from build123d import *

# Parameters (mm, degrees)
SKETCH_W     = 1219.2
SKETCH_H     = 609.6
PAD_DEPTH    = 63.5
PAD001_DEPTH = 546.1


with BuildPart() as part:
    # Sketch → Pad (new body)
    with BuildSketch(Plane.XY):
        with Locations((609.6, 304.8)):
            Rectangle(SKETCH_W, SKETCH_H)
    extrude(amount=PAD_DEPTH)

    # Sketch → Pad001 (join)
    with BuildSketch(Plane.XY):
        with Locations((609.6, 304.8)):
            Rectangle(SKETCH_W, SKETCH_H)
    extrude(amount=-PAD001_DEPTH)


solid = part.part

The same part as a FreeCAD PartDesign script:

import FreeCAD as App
import Part
import Sketcher

V = App.Vector
Q = App.Units.Quantity


def add_polygon(sketch, points):
    """Adds a closed chain of lines whose ends are joined by coincident constraints."""
    first, n = sketch.GeometryCount, len(points)
    for a, b in zip(points, points[1:] + points[:1]):
        sketch.addGeometry(Part.LineSegment(App.Vector(*a, 0), App.Vector(*b, 0)), False)
    for i in range(n):
        sketch.addConstraint(Sketcher.Constraint("Coincident", first + i, 2, first + (i + 1) % n, 1))

doc = App.newDocument("Part")
body = doc.addObject("PartDesign::Body", "Body")

sketch1 = doc.addObject("Sketcher::SketchObject", "Sketch")
body.addObject(sketch1)
sketch1.AttachmentSupport = (doc.XY_Plane, [""])
sketch1.MapMode = "FlatFace"
add_polygon(sketch1, [(0, 610), (0, 0), (1219, 0), (1219, 610)])
sketch1.addConstraint(Sketcher.Constraint("Vertical", 0))
sketch1.addConstraint(Sketcher.Constraint("Horizontal", 1))
sketch1.addConstraint(Sketcher.Constraint("Vertical", 2))
sketch1.addConstraint(Sketcher.Constraint("Horizontal", 3))
sketch1.addConstraint(Sketcher.Constraint("Coincident", 0, 2, -1, 1))
sketch1.addConstraint(Sketcher.Constraint("DistanceX", 1, 1, 1, 2, Q("48 in")))
sketch1.addConstraint(Sketcher.Constraint("DistanceY", 0, 2, 0, 1, Q("24 in")))
pad1 = doc.addObject("PartDesign::Pad", "Pad")
body.addObject(pad1)
pad1.Profile = sketch1
pad1.Length = Q("2.5 in")

sketch2 = doc.addObject("Sketcher::SketchObject", "Sketch001")
body.addObject(sketch2)
sketch2.AttachmentSupport = (doc.XY_Plane, [""])
sketch2.MapMode = "FlatFace"
add_polygon(sketch2, [(0, 610), (0, 0), (1219, 0), (1219, 610)])
sketch2.addConstraint(Sketcher.Constraint("Vertical", 0))
sketch2.addConstraint(Sketcher.Constraint("Horizontal", 1))
sketch2.addConstraint(Sketcher.Constraint("Vertical", 2))
sketch2.addConstraint(Sketcher.Constraint("Horizontal", 3))
sketch2.addConstraint(Sketcher.Constraint("Coincident", 0, 2, -1, 1))
sketch2.addConstraint(Sketcher.Constraint("DistanceX", 1, 1, 1, 2, Q("48 in")))
sketch2.addConstraint(Sketcher.Constraint("DistanceY", 0, 2, 0, 1, Q("24 in")))
pad2 = doc.addObject("PartDesign::Pad", "Pad001")
body.addObject(pad2)
pad2.Profile = sketch2
pad2.Length = Q("21.5 in")
pad2.Reversed = True

doc.recompute()
